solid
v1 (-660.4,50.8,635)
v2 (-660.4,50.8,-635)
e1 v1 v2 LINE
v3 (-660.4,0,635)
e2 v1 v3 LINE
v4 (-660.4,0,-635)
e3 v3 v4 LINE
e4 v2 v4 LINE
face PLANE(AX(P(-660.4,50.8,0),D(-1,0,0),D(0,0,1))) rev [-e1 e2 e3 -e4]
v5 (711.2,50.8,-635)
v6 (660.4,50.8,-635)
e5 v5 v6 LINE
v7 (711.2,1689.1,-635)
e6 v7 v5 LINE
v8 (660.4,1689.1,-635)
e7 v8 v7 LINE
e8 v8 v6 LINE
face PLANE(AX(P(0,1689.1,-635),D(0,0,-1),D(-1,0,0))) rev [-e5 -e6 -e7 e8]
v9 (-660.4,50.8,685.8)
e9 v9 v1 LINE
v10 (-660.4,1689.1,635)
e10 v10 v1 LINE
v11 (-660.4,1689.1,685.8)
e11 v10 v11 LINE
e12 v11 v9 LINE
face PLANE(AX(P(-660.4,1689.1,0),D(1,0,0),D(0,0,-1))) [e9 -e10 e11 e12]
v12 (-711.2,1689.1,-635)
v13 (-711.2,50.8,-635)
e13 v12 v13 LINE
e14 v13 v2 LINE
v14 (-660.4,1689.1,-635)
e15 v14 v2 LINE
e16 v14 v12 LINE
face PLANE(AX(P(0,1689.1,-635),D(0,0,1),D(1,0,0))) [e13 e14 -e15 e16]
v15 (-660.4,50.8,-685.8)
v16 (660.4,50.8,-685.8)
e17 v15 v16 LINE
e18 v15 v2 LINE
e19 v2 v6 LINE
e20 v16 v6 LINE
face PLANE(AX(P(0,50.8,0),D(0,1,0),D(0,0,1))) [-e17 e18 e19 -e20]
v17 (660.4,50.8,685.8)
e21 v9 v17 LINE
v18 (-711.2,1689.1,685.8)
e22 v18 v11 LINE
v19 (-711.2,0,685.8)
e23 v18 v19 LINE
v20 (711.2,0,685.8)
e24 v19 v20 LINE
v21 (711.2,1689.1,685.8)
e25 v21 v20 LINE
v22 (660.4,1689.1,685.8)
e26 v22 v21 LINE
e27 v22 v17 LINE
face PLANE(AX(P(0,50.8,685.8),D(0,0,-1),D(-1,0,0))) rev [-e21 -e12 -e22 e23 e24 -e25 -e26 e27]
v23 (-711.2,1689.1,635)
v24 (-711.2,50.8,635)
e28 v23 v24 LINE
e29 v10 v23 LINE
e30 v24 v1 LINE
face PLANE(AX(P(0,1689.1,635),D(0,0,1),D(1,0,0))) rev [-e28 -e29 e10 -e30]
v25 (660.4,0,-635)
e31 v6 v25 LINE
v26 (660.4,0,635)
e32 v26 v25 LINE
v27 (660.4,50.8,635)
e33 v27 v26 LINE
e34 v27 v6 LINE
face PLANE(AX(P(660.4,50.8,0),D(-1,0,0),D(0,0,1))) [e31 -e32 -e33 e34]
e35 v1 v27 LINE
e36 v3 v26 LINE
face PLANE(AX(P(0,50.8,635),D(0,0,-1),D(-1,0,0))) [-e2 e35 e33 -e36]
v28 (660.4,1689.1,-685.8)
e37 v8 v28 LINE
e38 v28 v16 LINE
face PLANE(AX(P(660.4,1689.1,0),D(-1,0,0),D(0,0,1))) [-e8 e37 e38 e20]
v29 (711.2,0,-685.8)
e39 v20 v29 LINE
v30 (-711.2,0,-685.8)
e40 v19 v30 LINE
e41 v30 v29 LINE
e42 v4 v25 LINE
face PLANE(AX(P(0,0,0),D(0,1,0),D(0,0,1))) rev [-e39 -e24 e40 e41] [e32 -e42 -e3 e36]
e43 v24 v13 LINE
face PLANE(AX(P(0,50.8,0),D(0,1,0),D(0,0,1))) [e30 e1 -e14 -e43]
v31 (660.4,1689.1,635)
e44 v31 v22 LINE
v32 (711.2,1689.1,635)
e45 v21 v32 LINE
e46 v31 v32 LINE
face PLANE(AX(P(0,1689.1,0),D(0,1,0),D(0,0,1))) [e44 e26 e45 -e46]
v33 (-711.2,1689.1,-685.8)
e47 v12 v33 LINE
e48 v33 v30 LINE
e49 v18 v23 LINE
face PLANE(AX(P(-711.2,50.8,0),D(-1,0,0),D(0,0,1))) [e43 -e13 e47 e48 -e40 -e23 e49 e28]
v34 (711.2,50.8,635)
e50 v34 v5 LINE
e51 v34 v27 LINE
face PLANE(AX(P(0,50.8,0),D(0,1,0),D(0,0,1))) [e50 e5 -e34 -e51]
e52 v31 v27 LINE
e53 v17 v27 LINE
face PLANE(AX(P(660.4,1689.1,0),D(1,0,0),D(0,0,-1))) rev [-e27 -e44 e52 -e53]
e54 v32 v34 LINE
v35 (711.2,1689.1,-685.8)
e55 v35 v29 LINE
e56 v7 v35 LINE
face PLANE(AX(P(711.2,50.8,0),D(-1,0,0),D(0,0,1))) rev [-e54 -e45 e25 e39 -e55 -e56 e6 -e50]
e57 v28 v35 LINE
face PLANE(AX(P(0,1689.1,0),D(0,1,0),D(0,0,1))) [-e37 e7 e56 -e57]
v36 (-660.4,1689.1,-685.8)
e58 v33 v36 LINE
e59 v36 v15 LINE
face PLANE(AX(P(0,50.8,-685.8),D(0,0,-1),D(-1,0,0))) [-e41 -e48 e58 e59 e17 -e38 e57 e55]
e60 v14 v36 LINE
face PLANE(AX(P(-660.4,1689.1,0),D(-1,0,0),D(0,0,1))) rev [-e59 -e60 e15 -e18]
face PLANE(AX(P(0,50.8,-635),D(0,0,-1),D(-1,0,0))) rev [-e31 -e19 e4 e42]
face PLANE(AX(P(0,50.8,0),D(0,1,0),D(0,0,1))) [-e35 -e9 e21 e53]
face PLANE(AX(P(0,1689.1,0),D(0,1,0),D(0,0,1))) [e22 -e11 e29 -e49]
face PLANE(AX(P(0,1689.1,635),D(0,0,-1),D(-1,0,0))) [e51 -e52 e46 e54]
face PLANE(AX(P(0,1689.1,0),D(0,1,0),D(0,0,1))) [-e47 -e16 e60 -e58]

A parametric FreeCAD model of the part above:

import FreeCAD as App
import Part
import Sketcher

V = App.Vector
Q = App.Units.Quantity

doc = App.newDocument("Part")
body = doc.addObject("PartDesign::Body", "Body")

sketch1 = doc.addObject("Sketcher::SketchObject", "Sketch")
body.addObject(sketch1)
sketch1.AttachmentSupport = (doc.XZ_Plane, [""])
sketch1.MapMode = "FlatFace"
sketch1.addGeometry([
    Part.LineSegment(V(711, 686, 0), V(711, -686, 0)),
    Part.LineSegment(V(711, -686, 0), V(-711, -686, 0)),
    Part.LineSegment(V(-711, -686, 0), V(-711, 686, 0)),
    Part.LineSegment(V(-711, 686, 0), V(711, 686, 0)),
    Part.LineSegment(V(-660, -635, 0), V(660, -635, 0)),
    Part.LineSegment(V(660, -635, 0), V(660, 635, 0)),
    Part.LineSegment(V(660, 635, 0), V(-660, 635, 0)),
    Part.LineSegment(V(-660, 635, 0), V(-660, -635, 0)),
], False)
sketch1.addConstraint([
    Sketcher.Constraint("Coincident", 0, 2, 1, 1),
    Sketcher.Constraint("Coincident", 1, 2, 2, 1),
    Sketcher.Constraint("Coincident", 2, 2, 3, 1),
    Sketcher.Constraint("Coincident", 3, 2, 0, 1),
    Sketcher.Constraint("Coincident", 4, 2, 5, 1),
    Sketcher.Constraint("Coincident", 5, 2, 6, 1),
    Sketcher.Constraint("Coincident", 6, 2, 7, 1),
    Sketcher.Constraint("Coincident", 7, 2, 4, 1),
    Sketcher.Constraint("Vertical", 0),
    Sketcher.Constraint("Horizontal", 1),
    Sketcher.Constraint("Vertical", 2),
    Sketcher.Constraint("Horizontal", 3),
    Sketcher.Constraint("Horizontal", 4),
    Sketcher.Constraint("Vertical", 5),
    Sketcher.Constraint("Horizontal", 6),
    Sketcher.Constraint("Vertical", 7),
    Sketcher.Constraint("Symmetric", 0, 2, 2, 2, -1, 1),
    Sketcher.Constraint("Symmetric", 4, 2, 6, 2, -1, 1),
    Sketcher.Constraint("DistanceX", 1, 2, 1, 1, Q("56 in")),
    Sketcher.Constraint("DistanceX", 4, 1, 4, 2, Q("52 in")),
    Sketcher.Constraint("DistanceY", 0, 2, 0, 1, Q("54 in")),
    Sketcher.Constraint("DistanceY", 5, 1, 5, 2, Q("50 in")),
])
pad1 = doc.addObject("PartDesign::Pad", "Pad")
body.addObject(pad1)
pad1.Profile = sketch1
pad1.Length = Q("2 in")
pad1.Reversed = True

sketch2 = doc.addObject("Sketcher::SketchObject", "Sketch001")
body.addObject(sketch2)
sketch2.AttachmentSupport = (doc.XZ_Plane, [""])
sketch2.MapMode = "FlatFace"
sketch2.addGeometry([
    Part.LineSegment(V(-711, 635, 0), V(-711, 686, 0)),
    Part.LineSegment(V(-711, 686, 0), V(-660, 686, 0)),
    Part.LineSegment(V(-660, 686, 0), V(-660, 635, 0)),
    Part.LineSegment(V(-660, 635, 0), V(-711, 635, 0)),
    Part.LineSegment(V(-711, -686, 0), V(-711, -635, 0)),
    Part.LineSegment(V(-711, -635, 0), V(-660, -635, 0)),
    Part.LineSegment(V(-660, -635, 0), V(-660, -686, 0)),
    Part.LineSegment(V(-660, -686, 0), V(-711, -686, 0)),
    Part.LineSegment(V(660, -686, 0), V(660, -635, 0)),
    Part.LineSegment(V(660, -635, 0), V(711, -635, 0)),
    Part.LineSegment(V(711, -635, 0), V(711, -686, 0)),
    Part.LineSegment(V(711, -686, 0), V(660, -686, 0)),
    Part.LineSegment(V(660, 635, 0), V(660, 686, 0)),
    Part.LineSegment(V(660, 686, 0), V(711, 686, 0)),
    Part.LineSegment(V(711, 686, 0), V(711, 635, 0)),
    Part.LineSegment(V(711, 635, 0), V(660, 635, 0)),
], False)
sketch2.addConstraint([
    Sketcher.Constraint("Coincident", 0, 2, 1, 1),
    Sketcher.Constraint("Coincident", 1, 2, 2, 1),
    Sketcher.Constraint("Coincident", 2, 2, 3, 1),
    Sketcher.Constraint("Coincident", 3, 2, 0, 1),
    Sketcher.Constraint("Coincident", 4, 2, 5, 1),
    Sketcher.Constraint("Coincident", 5, 2, 6, 1),
    Sketcher.Constraint("Coincident", 6, 2, 7, 1),
    Sketcher.Constraint("Coincident", 7, 2, 4, 1),
    Sketcher.Constraint("Coincident", 8, 2, 9, 1),
    Sketcher.Constraint("Coincident", 9, 2, 10, 1),
    Sketcher.Constraint("Coincident", 10, 2, 11, 1),
    Sketcher.Constraint("Coincident", 11, 2, 8, 1),
    Sketcher.Constraint("Coincident", 12, 2, 13, 1),
    Sketcher.Constraint("Coincident", 13, 2, 14, 1),
    Sketcher.Constraint("Coincident", 14, 2, 15, 1),
    Sketcher.Constraint("Coincident", 15, 2, 12, 1),
    Sketcher.Constraint("Vertical", 0),
    Sketcher.Constraint("Horizontal", 1),
    Sketcher.Constraint("Vertical", 2),
    Sketcher.Constraint("Horizontal", 3),
    Sketcher.Constraint("Vertical", 4),
    Sketcher.Constraint("Horizontal", 5),
    Sketcher.Constraint("Vertical", 6),
    Sketcher.Constraint("Horizontal", 7),
    Sketcher.Constraint("Vertical", 8),
    Sketcher.Constraint("Horizontal", 9),
    Sketcher.Constraint("Vertical", 10),
    Sketcher.Constraint("Horizontal", 11),
    Sketcher.Constraint("Vertical", 12),
    Sketcher.Constraint("Horizontal", 13),
    Sketcher.Constraint("Vertical", 14),
    Sketcher.Constraint("Horizontal", 15),
    Sketcher.Constraint("Symmetric", 2, 2, 8, 2, -1, 1),
    Sketcher.Constraint("Symmetric", 0, 2, 10, 2, -1, 1),
    Sketcher.Constraint("Symmetric", 6, 2, 12, 2, -1, 1),
    Sketcher.Constraint("Symmetric", 4, 2, 14, 2, -1, 1),
    Sketcher.Constraint("Symmetric", 5, 2, 8, 2, -2),
    Sketcher.Constraint("Symmetric", 7, 2, 10, 2, -2),
    Sketcher.Constraint("Equal", 15, 0),
    Sketcher.Constraint("DistanceX", 1, 1, 1, 2, Q("2 in")),
    Sketcher.Constraint("DistanceX", 0, 2, -1, 1, Q("28 in")),
    Sketcher.Constraint("DistanceY", -1, 1, 0, 2, Q("27 in")),
])
pad2 = doc.addObject("PartDesign::Pad", "Pad001")
body.addObject(pad2)
pad2.Profile = sketch2
pad2.Length = Q("66.5 in")
pad2.Reversed = True

doc.recompute()
